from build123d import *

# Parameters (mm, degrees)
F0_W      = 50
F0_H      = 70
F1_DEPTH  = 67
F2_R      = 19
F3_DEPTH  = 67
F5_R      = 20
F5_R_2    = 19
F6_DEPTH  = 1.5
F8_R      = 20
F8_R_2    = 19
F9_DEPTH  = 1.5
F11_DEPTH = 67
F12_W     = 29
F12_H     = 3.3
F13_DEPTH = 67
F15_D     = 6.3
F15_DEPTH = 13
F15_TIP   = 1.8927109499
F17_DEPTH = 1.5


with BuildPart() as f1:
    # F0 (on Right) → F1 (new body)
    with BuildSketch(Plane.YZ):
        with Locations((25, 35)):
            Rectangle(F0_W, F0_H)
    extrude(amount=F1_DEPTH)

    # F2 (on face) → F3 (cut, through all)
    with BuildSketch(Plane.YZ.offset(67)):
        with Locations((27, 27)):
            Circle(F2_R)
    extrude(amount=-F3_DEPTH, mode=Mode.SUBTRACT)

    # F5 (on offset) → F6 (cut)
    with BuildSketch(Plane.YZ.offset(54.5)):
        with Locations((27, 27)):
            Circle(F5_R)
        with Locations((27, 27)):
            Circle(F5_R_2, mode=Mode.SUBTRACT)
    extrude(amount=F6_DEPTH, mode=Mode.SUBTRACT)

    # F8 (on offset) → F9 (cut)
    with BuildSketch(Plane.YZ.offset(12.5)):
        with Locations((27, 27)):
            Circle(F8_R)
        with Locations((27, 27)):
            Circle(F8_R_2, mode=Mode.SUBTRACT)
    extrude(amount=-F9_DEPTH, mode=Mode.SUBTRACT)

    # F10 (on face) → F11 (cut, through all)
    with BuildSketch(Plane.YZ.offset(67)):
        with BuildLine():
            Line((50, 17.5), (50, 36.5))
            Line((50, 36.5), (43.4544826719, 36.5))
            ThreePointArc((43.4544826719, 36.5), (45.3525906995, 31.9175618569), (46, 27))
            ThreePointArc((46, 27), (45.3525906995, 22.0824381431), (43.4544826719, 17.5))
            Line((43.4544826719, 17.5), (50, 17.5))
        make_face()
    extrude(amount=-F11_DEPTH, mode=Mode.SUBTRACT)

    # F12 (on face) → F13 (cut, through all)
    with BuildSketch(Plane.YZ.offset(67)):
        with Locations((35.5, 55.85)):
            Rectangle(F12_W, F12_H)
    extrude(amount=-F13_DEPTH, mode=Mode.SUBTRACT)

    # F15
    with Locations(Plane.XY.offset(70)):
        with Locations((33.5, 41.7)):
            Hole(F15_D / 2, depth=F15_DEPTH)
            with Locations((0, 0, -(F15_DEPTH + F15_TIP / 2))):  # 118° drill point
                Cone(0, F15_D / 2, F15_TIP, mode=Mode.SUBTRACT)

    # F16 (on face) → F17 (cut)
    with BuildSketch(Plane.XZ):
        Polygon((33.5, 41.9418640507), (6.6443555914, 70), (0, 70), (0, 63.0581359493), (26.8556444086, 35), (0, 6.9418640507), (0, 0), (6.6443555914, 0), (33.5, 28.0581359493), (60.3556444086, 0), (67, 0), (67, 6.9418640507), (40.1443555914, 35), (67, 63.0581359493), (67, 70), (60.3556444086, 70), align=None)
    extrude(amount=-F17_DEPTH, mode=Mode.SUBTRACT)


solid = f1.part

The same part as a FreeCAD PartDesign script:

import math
import FreeCAD as App
import Part
import Sketcher
from FreeCAD import Vector
Q = App.Units.Quantity


def add_polygon(sketch, points):
    """Adds a closed chain of lines whose ends are joined by coincident constraints."""
    first, n = sketch.GeometryCount, len(points)
    for a, b in zip(points, points[1:] + points[:1]):
        sketch.addGeometry(Part.LineSegment(App.Vector(*a, 0), App.Vector(*b, 0)), False)
    for i in range(n):
        sketch.addConstraint(Sketcher.Constraint("Coincident", first + i, 2, first + (i + 1) % n, 1))

doc = App.newDocument("Part")
body = doc.addObject("PartDesign::Body", "Body")

sketch1 = body.newObject("Sketcher::SketchObject", "Sketch")
sketch1.AttachmentSupport = (doc.getObject("YZ_Plane"), [""])
sketch1.MapMode = "FlatFace"
add_polygon(sketch1, [(0, 70), (0, 0), (50, 0), (50, 70)])
sketch1.addConstraint([
    Sketcher.Constraint("Vertical", 0),
    Sketcher.Constraint("Horizontal", 1),
    Sketcher.Constraint("Vertical", 2),
    Sketcher.Constraint("Horizontal", 3),
    Sketcher.Constraint("Coincident", 0, 2, -1, 1),
    Sketcher.Constraint("DistanceX", 1, 1, 1, 2, Q("50 mm")),
    Sketcher.Constraint("DistanceY", 0, 2, 0, 1, Q("70 mm")),
])
pad1 = body.newObject("PartDesign::Pad", "Pad")
pad1.Profile = sketch1
pad1.Length = 67

sketch2 = body.newObject("Sketcher::SketchObject", "Sketch001")
sketch2.AttachmentSupport = (doc.getObject("YZ_Plane"), [""])
sketch2.MapMode = "FlatFace"
sketch2.AttachmentOffset = App.Placement(Vector(0, 0, 67), App.Rotation())
sketch2.addGeometry(Part.Circle(Vector(27, 27, 0), Vector(0, 0, 1), 19), False)
sketch2.addConstraint([
    Sketcher.Constraint("Diameter", 0, Q("38 mm")),
    Sketcher.Constraint("DistanceX", -1, 1, 0, 3, Q("27 mm")),
    Sketcher.Constraint("DistanceY", -1, 1, 0, 3, Q("27 mm")),
])
pocket1 = body.newObject("PartDesign::Pocket", "Pocket")
pocket1.Profile = sketch2
pocket1.Type = "ThroughAll"

sketch3 = body.newObject("Sketcher::SketchObject", "Sketch002")
sketch3.AttachmentSupport = (doc.getObject("YZ_Plane"), [""])
sketch3.MapMode = "FlatFace"
sketch3.AttachmentOffset = App.Placement(Vector(0, 0, 54.5), App.Rotation())
sketch3.addGeometry([
    Part.Circle(Vector(27, 27, 0), Vector(0, 0, 1), 20),
    Part.Circle(Vector(27, 27, 0), Vector(0, 0, 1), 19),
], False)
sketch3.addConstraint([
    Sketcher.Constraint("Coincident", 1, 3, 0, 3),
    Sketcher.Constraint("Diameter", 0, Q("40 mm")),
    Sketcher.Constraint("Diameter", 1, Q("38 mm")),
    Sketcher.Constraint("DistanceX", -1, 1, 0, 3, Q("27 mm")),
    Sketcher.Constraint("DistanceY", -1, 1, 0, 3, Q("27 mm")),
])
pocket2 = body.newObject("PartDesign::Pocket", "Pocket001")
pocket2.Profile = sketch3
pocket2.Length = 1.5
pocket2.Reversed = True

sketch4 = body.newObject("Sketcher::SketchObject", "Sketch003")
sketch4.AttachmentSupport = (doc.getObject("YZ_Plane"), [""])
sketch4.MapMode = "FlatFace"
sketch4.AttachmentOffset = App.Placement(Vector(0, 0, 12.5), App.Rotation())
sketch4.addGeometry([
    Part.Circle(Vector(27, 27, 0), Vector(0, 0, 1), 20),
    Part.Circle(Vector(27, 27, 0), Vector(0, 0, 1), 19),
], False)
sketch4.addConstraint([
    Sketcher.Constraint("Coincident", 1, 3, 0, 3),
    Sketcher.Constraint("Diameter", 0, Q("40 mm")),
    Sketcher.Constraint("Diameter", 1, Q("38 mm")),
    Sketcher.Constraint("DistanceX", -1, 1, 0, 3, Q("27 mm")),
    Sketcher.Constraint("DistanceY", -1, 1, 0, 3, Q("27 mm")),
])
pocket3 = body.newObject("PartDesign::Pocket", "Pocket002")
pocket3.Profile = sketch4
pocket3.Length = 1.5

sketch5 = body.newObject("Sketcher::SketchObject", "Sketch004")
sketch5.AttachmentSupport = (doc.getObject("YZ_Plane"), [""])
sketch5.MapMode = "FlatFace"
sketch5.AttachmentOffset = App.Placement(Vector(0, 0, 67), App.Rotation())
sketch5.addGeometry([
    Part.LineSegment(Vector(50, 17.5, 0), Vector(50, 36.5, 0)),
    Part.LineSegment(Vector(50, 36.5, 0), Vector(43.454483, 36.5, 0)),
    Part.ArcOfCircle(Part.Circle(Vector(27, 27, 0), Vector(0, 0, 1), 19), math.radians(0), math.radians(30)),
    Part.ArcOfCircle(Part.Circle(Vector(27, 27, 0), Vector(0, 0, 1), 19), math.radians(-30), math.radians(0)),
    Part.LineSegment(Vector(43.454483, 17.5, 0), Vector(50, 17.5, 0)),
], False)
sketch5.addConstraint([
    Sketcher.Constraint("Coincident", 0, 2, 1, 1),
    Sketcher.Constraint("Coincident", 1, 2, 2, 2),
    Sketcher.Constraint("Tangent", 2, 1, 3, 2),
    Sketcher.Constraint("Coincident", 3, 1, 4, 1),
    Sketcher.Constraint("Coincident", 4, 2, 0, 1),
    Sketcher.Constraint("Vertical", 0),
    Sketcher.Constraint("Horizontal", 1),
    Sketcher.Constraint("Horizontal", 4),
    Sketcher.Constraint("Equal", 2, 3),
    Sketcher.Constraint("Horizontal", 3, 3, 2, 1),
    Sketcher.Constraint("Vertical", 1, 2, 3, 1),
    Sketcher.Constraint("Radius", 2, Q("19 mm")),
    Sketcher.Constraint("DistanceY", 0, 1, 0, 2, Q("19 mm")),
    Sketcher.Constraint("DistanceX", -1, 1, 2, 3, Q("27 mm")),
    Sketcher.Constraint("DistanceY", -1, 1, 2, 3, Q("27 mm")),
    Sketcher.Constraint("DistanceX", -1, 1, 0, 2, Q("50 mm")),
])
pocket4 = body.newObject("PartDesign::Pocket", "Pocket003")
pocket4.Profile = sketch5
pocket4.Type = "ThroughAll"

sketch6 = body.newObject("Sketcher::SketchObject", "Sketch005")
sketch6.AttachmentSupport = (doc.getObject("YZ_Plane"), [""])
sketch6.MapMode = "FlatFace"
sketch6.AttachmentOffset = App.Placement(Vector(0, 0, 67), App.Rotation())
add_polygon(sketch6, [(21, 57.5), (21, 54.2), (50, 54.2), (50, 57.5)])
sketch6.addConstraint([
    Sketcher.Constraint("Vertical", 0),
    Sketcher.Constraint("Horizontal", 1),
    Sketcher.Constraint("Vertical", 2),
    Sketcher.Constraint("Horizontal", 3),
    Sketcher.Constraint("DistanceX", 1, 1, 1, 2, Q("29 mm")),
    Sketcher.Constraint("DistanceY", 0, 2, 0, 1, Q("3.3 mm")),
    Sketcher.Constraint("DistanceX", -1, 1, 0, 2, Q("21 mm")),
    Sketcher.Constraint("DistanceY", -1, 1, 0, 2, Q("54.2 mm")),
])
pocket5 = body.newObject("PartDesign::Pocket", "Pocket004")
pocket5.Profile = sketch6
pocket5.Type = "ThroughAll"

sketch7 = body.newObject("Sketcher::SketchObject", "Sketch006")
sketch7.AttachmentSupport = (doc.getObject("XY_Plane"), [""])
sketch7.MapMode = "FlatFace"
sketch7.AttachmentOffset = App.Placement(Vector(0, 0, 70), App.Rotation())
sketch7.addGeometry(Part.Circle(Vector(33.5, 41.7, 0), Vector(0, 0, 1), 3.15), False)
sketch7.addConstraint([
    Sketcher.Constraint("Diameter", 0, Q("6.3 mm")),
    Sketcher.Constraint("DistanceX", -1, 1, 0, 3, Q("33.5 mm")),
    Sketcher.Constraint("DistanceY", -1, 1, 0, 3, Q("41.7 mm")),
])
doc.recompute()
hole = body.newObject("PartDesign::Hole", "Hole")
hole.Profile = sketch7
hole.ThreadType = "None"
hole.Diameter = 6.3
hole.DepthType = "Dimension"
hole.Depth = 13
hole.DrillPoint = "Angled"
hole.DrillPointAngle = 118

sketch8 = body.newObject("Sketcher::SketchObject", "Sketch007")
sketch8.AttachmentSupport = (doc.getObject("XZ_Plane"), [""])
sketch8.MapMode = "FlatFace"
add_polygon(sketch8, [(33.5, 41.941864), (6.644356, 70), (0, 70), (0, 63.058136), (26.855644, 35), (0, 6.941864), (0, 0), (6.644356, 0), (33.5, 28.058136), (60.355644, 0), (67, 0), (67, 6.941864), (40.144356, 35), (67, 63.058136), (67, 70), (60.355644, 70)])
sketch8.addConstraint([
    Sketcher.Constraint("Horizontal", 1),
    Sketcher.Constraint("Vertical", 2),
    Sketcher.Constraint("Vertical", 5),
    Sketcher.Constraint("Horizontal", 6),
    Sketcher.Constraint("Horizontal", 9),
    Sketcher.Constraint("Vertical", 10),
    Sketcher.Constraint("Vertical", 13),
    Sketcher.Constraint("Horizontal", 14),
    Sketcher.Constraint("Coincident", 5, 2, -1, 1),
    Sketcher.Constraint("PointOnObject", 1, 2, -2),
    Sketcher.Constraint("PointOnObject", 8, 2, -1),
    Sketcher.Constraint("Parallel", 0, 3),
    Sketcher.Constraint("Parallel", 4, 7),
    Sketcher.Constraint("Parallel", 3, 8),
    Sketcher.Constraint("Parallel", 8, 11),
    Sketcher.Constraint("Parallel", 7, 12),
    Sketcher.Constraint("Parallel", 12, 15),
    Sketcher.Constraint("Horizontal", 4, 2, 10, 2),
    Sketcher.Constraint("Horizontal", 3, 2, 11, 2),
    Sketcher.Constraint("Horizontal", 2, 2, 12, 2),
    Sketcher.Constraint("Horizontal", 1, 2, 13, 2),
    Sketcher.Constraint("Vertical", 0, 2, 6, 2),
    Sketcher.Constraint("Vertical", 10, 2, 12, 2),
    Sketcher.Constraint("Vertical", 8, 2, 14, 2),
    Sketcher.Constraint("Equal", 6, 9),
    Sketcher.Constraint("Equal", 2, 5),
    Sketcher.Constraint("Equal", 0, 3),
    Sketcher.Constraint("DistanceY", -1, 1, 0, 2, Q("70 mm")),
    Sketcher.Constraint("DistanceX", -1, 1, 9, 2, Q("67 mm")),
    Sketcher.Constraint("DistanceX", 1, 2, 1, 1, Q("6.644356 mm")),
    Sketcher.Constraint("DistanceY", 2, 2, 2, 1, Q("6.941864 mm")),
])
pocket6 = body.newObject("PartDesign::Pocket", "Pocket005")
pocket6.Profile = sketch8
pocket6.Length = 1.5

doc.recompute()
